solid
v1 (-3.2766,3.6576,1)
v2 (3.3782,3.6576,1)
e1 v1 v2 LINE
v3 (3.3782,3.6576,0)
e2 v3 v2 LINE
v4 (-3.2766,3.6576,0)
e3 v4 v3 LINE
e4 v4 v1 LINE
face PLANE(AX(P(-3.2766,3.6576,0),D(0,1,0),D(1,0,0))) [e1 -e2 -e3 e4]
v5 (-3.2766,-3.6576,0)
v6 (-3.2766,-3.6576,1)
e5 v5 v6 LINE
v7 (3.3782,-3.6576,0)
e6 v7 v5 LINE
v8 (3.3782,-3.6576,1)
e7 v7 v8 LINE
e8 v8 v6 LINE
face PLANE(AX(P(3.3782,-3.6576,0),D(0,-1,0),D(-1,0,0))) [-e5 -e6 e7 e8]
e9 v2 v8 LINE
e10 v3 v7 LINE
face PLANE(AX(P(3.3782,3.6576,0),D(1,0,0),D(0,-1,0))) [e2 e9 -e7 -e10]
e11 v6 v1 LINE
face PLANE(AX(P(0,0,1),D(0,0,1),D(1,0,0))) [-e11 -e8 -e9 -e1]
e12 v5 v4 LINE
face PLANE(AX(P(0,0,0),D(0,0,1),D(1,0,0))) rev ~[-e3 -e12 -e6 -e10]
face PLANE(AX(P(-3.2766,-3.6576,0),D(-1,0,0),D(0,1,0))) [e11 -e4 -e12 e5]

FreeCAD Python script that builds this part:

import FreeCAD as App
import Part
import Sketcher
from FreeCAD import Vector
Q = App.Units.Quantity

doc = App.newDocument("Part")
body = doc.addObject("PartDesign::Body", "Body")

sketch1 = body.newObject("Sketcher::SketchObject", "Sketch")
sketch1.AttachmentSupport = (doc.getObject("XY_Plane"), [""])
sketch1.MapMode = "FlatFace"
sketch1.addGeometry([
    Part.LineSegment(Vector(3, 4, 0), Vector(-3, 4, 0)),
    Part.LineSegment(Vector(-3, 4, 0), Vector(-3, -4, 0)),
    Part.LineSegment(Vector(-3, -4, 0), Vector(3, -4, 0)),
    Part.LineSegment(Vector(3, -4, 0), Vector(3, 4, 0)),
], False)
sketch1.addConstraint([
    Sketcher.Constraint("Coincident", 0, 2, 1, 1),
    Sketcher.Constraint("Coincident", 1, 2, 2, 1),
    Sketcher.Constraint("Coincident", 2, 2, 3, 1),
    Sketcher.Constraint("Coincident", 3, 2, 0, 1),
    Sketcher.Constraint("Horizontal", 0),
    Sketcher.Constraint("Vertical", 1),
    Sketcher.Constraint("Horizontal", 2),
    Sketcher.Constraint("Vertical", 3),
    Sketcher.Constraint("DistanceX", 0, 2, 0, 1, Q("0.262 in")),
    Sketcher.Constraint("DistanceY", 1, 2, 1, 1, Q("0.288 in")),
    Sketcher.Constraint("DistanceX", 0, 2, -1, 1, Q("0.129 in")),
    Sketcher.Constraint("DistanceY", -1, 1, 0, 2, Q("0.144 in")),
])
pad1 = body.newObject("PartDesign::Pad", "Pad")
pad1.Profile = sketch1
pad1.Length = 1

doc.recompute()
